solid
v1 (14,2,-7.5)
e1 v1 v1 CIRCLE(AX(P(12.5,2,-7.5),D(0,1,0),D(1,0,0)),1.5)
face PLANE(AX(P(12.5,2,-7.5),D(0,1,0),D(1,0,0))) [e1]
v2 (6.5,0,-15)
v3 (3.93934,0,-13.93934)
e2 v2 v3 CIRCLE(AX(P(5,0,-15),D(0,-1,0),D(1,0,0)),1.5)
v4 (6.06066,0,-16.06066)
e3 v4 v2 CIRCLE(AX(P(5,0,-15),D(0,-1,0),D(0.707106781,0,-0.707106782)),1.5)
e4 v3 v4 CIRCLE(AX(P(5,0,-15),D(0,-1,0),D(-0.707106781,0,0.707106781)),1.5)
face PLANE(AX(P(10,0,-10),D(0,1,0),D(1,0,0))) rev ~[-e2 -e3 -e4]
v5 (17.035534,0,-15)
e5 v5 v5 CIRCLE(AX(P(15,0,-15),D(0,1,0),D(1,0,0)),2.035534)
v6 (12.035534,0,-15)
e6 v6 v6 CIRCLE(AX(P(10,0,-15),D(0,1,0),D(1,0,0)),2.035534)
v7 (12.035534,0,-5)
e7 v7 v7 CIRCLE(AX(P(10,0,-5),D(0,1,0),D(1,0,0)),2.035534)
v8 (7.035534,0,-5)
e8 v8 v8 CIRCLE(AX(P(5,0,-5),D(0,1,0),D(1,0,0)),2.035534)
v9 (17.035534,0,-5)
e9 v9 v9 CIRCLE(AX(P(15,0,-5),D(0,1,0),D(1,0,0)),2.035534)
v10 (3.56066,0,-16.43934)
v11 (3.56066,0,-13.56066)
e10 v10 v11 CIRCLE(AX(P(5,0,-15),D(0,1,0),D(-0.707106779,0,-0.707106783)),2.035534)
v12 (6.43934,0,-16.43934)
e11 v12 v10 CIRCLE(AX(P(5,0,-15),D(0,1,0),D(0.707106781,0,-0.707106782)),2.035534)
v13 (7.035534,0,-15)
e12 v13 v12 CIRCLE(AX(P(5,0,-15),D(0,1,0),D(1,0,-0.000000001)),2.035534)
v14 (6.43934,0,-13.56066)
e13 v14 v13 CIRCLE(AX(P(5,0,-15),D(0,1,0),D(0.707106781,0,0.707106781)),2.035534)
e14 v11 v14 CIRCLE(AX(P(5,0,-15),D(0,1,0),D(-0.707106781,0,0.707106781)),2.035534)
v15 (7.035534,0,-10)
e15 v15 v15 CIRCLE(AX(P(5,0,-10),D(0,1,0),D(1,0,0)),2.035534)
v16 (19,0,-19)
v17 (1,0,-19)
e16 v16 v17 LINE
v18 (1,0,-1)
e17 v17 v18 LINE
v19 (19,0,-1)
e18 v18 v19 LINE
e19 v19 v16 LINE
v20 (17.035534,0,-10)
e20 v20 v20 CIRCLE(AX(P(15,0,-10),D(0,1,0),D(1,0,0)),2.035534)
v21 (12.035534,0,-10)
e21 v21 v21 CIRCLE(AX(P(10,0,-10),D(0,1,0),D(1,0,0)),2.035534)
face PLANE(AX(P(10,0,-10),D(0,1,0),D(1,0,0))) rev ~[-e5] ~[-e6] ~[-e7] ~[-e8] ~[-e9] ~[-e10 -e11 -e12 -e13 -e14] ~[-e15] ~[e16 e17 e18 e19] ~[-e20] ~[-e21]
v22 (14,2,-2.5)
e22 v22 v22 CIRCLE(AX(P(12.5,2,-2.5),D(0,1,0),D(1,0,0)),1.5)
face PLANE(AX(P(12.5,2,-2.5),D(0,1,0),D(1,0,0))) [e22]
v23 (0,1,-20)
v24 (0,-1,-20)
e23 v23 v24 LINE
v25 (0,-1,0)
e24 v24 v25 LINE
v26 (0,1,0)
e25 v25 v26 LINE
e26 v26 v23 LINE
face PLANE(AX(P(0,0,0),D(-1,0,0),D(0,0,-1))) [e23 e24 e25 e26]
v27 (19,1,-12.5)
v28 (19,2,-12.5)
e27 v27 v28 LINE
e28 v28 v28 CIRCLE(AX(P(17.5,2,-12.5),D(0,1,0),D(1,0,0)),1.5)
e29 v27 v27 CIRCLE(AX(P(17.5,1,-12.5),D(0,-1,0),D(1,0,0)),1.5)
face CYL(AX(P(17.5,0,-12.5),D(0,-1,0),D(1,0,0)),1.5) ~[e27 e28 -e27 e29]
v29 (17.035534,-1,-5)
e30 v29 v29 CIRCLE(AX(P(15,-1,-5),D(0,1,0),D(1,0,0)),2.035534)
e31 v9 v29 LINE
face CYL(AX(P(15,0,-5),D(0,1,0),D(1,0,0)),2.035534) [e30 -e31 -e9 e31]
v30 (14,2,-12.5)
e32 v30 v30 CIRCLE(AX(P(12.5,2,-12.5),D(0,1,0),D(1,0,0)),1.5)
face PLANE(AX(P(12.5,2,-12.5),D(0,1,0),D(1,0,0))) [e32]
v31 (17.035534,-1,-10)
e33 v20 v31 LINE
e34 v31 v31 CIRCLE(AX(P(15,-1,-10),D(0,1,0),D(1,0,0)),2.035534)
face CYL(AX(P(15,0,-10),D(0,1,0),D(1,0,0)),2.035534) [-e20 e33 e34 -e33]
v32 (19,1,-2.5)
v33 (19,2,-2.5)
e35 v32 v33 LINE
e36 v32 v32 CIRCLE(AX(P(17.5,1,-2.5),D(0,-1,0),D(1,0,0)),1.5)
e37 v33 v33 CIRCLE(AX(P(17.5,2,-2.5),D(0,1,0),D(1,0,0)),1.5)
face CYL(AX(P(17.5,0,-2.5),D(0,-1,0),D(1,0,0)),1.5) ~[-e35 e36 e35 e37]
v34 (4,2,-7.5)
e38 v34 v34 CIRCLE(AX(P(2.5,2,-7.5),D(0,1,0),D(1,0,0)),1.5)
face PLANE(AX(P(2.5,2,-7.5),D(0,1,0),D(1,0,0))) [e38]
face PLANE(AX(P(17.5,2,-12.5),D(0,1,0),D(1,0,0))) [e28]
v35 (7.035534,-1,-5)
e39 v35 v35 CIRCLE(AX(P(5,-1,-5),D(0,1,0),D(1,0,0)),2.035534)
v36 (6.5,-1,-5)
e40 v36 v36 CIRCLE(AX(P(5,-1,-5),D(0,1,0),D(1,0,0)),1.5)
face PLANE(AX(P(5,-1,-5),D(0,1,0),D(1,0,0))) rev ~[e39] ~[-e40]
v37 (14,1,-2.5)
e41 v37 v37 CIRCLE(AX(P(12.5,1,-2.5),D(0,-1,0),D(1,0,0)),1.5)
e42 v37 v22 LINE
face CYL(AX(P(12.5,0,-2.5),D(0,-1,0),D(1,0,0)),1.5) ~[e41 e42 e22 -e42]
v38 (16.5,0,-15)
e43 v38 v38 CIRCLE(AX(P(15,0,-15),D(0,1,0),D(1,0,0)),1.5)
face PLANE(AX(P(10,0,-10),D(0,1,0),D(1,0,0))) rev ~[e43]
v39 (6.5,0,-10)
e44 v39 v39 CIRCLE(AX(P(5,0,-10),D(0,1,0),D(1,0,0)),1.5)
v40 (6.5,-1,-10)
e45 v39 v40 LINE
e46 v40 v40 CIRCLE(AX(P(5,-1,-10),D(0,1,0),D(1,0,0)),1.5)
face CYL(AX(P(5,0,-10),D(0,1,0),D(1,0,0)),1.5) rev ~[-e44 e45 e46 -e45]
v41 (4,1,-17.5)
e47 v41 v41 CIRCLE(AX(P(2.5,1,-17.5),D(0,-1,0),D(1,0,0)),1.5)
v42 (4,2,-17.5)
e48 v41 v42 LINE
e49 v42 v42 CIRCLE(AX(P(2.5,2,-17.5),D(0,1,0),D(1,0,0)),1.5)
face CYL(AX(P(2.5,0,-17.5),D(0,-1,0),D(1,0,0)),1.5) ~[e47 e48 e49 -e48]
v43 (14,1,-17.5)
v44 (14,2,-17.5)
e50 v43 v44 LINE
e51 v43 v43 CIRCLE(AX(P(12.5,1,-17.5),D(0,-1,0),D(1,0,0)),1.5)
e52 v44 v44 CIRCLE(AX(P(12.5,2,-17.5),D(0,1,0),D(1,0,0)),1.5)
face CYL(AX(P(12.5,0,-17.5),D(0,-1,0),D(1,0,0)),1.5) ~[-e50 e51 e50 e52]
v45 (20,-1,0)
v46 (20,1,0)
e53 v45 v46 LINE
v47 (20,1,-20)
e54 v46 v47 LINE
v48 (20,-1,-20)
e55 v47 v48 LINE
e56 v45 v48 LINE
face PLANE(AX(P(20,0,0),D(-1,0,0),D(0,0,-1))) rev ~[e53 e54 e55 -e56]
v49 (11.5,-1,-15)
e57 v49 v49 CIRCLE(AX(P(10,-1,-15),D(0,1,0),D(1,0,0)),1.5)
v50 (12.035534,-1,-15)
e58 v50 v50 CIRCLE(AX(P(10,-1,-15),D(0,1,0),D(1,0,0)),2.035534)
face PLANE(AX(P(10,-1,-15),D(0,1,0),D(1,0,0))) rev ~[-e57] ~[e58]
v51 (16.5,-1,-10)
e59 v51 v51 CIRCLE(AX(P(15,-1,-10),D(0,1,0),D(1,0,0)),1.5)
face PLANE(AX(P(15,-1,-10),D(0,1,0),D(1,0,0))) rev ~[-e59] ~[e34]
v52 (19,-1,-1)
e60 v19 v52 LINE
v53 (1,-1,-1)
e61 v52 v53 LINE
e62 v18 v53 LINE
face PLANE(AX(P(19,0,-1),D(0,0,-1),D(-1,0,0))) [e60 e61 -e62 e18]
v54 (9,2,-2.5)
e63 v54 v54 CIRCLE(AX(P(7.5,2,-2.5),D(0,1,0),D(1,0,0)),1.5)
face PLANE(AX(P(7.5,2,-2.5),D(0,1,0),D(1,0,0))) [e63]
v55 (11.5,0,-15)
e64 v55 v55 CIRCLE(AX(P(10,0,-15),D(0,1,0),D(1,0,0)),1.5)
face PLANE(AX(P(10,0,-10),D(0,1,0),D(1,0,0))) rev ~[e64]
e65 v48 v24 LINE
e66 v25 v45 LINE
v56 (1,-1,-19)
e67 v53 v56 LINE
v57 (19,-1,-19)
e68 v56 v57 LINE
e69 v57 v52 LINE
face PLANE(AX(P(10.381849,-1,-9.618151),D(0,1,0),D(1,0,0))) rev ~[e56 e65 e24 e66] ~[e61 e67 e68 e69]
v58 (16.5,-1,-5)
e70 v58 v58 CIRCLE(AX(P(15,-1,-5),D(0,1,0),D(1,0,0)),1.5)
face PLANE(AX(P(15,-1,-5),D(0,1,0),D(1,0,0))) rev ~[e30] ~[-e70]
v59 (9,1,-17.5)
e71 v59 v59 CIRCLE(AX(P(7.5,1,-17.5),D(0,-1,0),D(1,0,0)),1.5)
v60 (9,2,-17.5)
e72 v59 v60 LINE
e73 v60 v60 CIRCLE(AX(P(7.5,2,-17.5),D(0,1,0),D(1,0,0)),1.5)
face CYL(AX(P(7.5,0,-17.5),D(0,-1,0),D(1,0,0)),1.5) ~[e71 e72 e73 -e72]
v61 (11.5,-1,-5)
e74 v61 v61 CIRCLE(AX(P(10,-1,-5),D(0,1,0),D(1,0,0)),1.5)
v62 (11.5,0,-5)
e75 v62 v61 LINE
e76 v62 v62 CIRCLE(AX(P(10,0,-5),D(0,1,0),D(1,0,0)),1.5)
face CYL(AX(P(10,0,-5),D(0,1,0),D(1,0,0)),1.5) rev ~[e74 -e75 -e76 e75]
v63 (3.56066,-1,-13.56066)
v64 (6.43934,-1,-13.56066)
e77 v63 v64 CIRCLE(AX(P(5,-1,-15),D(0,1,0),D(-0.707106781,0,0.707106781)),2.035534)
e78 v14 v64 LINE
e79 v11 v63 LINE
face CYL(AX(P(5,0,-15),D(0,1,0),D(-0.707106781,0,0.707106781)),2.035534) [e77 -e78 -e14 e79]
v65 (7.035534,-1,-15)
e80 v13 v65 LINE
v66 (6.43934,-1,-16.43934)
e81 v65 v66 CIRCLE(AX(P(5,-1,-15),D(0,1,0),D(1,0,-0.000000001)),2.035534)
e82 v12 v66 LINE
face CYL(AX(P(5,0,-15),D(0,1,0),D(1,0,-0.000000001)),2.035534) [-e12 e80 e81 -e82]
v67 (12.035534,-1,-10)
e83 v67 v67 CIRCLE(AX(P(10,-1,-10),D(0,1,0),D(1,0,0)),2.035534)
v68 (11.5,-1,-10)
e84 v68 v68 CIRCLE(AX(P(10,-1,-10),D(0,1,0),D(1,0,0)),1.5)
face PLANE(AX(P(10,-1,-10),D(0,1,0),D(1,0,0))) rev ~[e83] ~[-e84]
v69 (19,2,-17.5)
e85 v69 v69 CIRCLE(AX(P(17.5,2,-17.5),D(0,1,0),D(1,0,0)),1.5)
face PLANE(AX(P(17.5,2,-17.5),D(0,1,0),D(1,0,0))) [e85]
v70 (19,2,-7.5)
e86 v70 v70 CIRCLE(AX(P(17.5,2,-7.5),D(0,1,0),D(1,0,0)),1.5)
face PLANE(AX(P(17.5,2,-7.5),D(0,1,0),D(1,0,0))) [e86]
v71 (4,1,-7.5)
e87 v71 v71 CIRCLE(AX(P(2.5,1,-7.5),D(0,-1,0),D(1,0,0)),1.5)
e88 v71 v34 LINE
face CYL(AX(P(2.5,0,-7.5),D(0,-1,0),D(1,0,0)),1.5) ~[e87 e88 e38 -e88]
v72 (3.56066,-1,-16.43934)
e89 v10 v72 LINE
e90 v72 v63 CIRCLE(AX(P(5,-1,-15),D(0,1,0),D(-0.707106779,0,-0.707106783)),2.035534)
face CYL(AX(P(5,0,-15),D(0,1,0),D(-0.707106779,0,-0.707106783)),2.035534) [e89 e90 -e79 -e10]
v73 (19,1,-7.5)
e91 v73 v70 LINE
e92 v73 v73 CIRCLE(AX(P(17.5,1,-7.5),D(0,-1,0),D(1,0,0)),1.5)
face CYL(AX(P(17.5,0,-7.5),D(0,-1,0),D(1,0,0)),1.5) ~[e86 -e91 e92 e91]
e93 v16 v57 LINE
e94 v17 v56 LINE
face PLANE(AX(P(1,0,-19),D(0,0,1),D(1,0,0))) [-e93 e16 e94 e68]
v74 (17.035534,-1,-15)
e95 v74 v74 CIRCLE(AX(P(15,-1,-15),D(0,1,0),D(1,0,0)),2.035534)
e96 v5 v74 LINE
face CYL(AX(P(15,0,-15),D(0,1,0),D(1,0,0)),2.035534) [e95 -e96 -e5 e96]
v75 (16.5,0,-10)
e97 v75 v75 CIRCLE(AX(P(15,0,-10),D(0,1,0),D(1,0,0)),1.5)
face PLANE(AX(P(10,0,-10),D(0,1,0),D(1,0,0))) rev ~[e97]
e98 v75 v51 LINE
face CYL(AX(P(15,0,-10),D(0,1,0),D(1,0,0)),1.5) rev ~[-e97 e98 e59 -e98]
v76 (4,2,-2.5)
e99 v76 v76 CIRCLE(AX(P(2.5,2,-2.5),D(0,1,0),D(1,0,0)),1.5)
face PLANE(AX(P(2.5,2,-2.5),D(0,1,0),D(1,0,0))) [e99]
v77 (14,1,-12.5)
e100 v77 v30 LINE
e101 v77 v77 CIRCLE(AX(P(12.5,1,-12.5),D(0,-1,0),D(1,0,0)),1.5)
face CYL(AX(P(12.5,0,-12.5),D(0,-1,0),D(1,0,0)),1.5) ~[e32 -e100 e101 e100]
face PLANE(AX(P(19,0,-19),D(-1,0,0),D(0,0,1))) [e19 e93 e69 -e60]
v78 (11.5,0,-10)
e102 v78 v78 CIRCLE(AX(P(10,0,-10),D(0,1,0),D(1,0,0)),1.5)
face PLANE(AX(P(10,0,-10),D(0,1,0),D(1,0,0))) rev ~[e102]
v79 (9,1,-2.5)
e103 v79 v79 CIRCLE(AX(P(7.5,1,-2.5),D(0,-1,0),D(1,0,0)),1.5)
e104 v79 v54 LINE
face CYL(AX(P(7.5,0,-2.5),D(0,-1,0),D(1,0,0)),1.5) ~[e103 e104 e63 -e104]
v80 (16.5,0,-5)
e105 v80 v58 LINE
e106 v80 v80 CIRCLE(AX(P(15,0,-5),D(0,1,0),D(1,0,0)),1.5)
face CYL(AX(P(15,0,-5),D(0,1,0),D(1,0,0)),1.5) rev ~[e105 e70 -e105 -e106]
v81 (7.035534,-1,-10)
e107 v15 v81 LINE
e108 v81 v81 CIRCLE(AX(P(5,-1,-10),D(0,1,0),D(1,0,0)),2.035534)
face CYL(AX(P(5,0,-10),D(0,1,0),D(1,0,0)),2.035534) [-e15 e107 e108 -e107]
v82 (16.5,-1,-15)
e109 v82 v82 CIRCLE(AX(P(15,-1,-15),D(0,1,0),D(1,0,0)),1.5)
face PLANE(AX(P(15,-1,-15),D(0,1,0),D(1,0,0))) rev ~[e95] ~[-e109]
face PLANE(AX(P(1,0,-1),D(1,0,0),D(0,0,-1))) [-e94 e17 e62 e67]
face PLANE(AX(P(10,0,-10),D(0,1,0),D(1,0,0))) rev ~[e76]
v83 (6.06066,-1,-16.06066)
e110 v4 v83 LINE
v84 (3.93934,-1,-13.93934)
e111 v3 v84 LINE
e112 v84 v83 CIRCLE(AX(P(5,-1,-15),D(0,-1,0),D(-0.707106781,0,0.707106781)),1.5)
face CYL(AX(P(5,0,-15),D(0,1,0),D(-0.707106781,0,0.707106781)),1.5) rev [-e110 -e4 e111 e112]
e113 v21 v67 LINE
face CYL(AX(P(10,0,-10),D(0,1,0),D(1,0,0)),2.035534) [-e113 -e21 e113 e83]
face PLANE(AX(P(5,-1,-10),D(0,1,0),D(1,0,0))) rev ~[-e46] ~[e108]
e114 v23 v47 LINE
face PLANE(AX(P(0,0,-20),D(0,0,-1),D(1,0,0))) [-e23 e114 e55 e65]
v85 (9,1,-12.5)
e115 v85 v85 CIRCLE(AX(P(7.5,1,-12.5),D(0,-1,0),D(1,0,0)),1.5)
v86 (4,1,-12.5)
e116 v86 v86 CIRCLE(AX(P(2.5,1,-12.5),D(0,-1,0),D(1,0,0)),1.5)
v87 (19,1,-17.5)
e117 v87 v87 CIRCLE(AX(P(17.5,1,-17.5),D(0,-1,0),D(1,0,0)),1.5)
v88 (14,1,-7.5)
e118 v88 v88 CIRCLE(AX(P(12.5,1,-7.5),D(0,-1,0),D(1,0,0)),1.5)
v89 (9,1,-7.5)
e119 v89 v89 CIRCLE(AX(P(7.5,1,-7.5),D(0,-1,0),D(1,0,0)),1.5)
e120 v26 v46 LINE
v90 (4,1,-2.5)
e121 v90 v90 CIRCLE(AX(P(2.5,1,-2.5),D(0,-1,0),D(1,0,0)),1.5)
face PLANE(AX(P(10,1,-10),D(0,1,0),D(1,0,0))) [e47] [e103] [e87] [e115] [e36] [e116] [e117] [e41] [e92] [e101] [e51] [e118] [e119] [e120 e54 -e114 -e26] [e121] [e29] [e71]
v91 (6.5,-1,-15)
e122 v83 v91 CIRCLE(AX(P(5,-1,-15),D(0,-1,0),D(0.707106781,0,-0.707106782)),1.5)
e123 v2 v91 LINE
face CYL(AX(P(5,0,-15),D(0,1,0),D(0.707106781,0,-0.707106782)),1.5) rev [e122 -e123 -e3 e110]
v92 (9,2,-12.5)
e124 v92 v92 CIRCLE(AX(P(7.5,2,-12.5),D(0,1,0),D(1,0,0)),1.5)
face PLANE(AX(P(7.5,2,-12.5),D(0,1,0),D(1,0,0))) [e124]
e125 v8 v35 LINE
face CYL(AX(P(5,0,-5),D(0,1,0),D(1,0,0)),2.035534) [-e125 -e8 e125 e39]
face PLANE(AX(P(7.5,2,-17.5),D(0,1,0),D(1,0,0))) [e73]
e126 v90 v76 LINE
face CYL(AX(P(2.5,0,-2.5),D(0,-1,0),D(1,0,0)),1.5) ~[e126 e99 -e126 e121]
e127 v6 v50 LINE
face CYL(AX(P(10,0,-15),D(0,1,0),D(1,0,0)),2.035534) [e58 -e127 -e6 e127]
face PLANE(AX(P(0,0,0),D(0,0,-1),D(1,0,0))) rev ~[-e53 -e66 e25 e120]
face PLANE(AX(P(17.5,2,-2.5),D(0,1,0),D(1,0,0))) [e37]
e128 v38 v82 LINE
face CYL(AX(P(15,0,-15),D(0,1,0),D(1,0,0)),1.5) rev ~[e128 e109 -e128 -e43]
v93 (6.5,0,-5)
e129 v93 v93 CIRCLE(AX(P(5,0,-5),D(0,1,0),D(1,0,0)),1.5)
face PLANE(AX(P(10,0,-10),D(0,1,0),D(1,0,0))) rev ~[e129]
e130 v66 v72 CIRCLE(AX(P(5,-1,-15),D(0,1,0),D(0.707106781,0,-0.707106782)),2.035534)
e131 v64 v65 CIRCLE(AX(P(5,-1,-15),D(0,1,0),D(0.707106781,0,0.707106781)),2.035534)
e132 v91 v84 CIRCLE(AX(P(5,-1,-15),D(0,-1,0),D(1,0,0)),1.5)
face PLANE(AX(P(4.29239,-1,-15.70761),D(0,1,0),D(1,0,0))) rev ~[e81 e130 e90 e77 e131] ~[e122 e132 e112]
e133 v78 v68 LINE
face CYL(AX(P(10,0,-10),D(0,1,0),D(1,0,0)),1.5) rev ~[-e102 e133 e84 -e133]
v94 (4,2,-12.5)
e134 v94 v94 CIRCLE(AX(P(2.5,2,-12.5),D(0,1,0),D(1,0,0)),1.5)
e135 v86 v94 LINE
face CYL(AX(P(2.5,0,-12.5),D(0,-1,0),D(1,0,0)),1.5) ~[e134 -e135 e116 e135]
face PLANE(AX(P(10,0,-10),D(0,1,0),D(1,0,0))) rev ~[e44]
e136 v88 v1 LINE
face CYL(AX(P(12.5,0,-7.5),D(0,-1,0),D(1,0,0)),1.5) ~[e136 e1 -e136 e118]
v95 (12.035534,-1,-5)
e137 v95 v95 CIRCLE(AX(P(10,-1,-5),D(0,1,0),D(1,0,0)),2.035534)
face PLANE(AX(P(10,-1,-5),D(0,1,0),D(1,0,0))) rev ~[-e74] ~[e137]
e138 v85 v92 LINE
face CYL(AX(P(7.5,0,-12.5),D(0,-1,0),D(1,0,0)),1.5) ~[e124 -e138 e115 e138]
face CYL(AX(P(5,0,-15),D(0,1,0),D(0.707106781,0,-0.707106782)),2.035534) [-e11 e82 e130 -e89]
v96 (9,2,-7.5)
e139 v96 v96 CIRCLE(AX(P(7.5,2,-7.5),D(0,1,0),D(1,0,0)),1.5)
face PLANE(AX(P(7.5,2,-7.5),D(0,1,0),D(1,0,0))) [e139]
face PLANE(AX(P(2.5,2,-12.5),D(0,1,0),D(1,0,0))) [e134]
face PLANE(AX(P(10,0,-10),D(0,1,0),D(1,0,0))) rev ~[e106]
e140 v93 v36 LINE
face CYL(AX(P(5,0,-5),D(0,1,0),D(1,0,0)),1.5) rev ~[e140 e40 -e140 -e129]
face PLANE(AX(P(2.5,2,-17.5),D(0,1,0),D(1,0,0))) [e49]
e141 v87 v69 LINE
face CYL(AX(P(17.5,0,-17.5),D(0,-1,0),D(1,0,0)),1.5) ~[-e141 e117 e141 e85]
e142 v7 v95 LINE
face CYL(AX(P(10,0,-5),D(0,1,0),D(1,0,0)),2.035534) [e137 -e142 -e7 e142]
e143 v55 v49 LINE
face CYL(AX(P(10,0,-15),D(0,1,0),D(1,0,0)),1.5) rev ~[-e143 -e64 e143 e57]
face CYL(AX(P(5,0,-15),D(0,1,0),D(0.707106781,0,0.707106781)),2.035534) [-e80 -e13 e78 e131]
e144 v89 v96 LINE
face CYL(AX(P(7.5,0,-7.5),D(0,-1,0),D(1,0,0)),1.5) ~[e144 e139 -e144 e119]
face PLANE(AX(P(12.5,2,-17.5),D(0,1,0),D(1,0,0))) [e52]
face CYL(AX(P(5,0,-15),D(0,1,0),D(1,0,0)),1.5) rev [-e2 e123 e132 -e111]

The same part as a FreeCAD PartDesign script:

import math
import FreeCAD as App
import Part
import Sketcher

V = App.Vector


def add_polygon(sketch, points):
    """Adds a closed chain of lines whose ends are joined by coincident constraints."""
    first, n = sketch.GeometryCount, len(points)
    for a, b in zip(points, points[1:] + points[:1]):
        sketch.addGeometry(Part.LineSegment(App.Vector(*a, 0), App.Vector(*b, 0)), False)
    for i in range(n):
        sketch.addConstraint(Sketcher.Constraint("Coincident", first + i, 2, first + (i + 1) % n, 1))

doc = App.newDocument("Part")
params = doc.addObject("Spreadsheet::Sheet", "Params")
for row, (alias, value) in enumerate([
    ("sketch1_diameter", "3 mm"),
    ("sketch1_width", "20 mm"),
    ("sketch1_width2", "18 mm"),
    ("pad1_length", "1 mm"),
    ("sketch2_diameter", "3 mm"),
    ("pad2_length", "2 mm"),
    ("sketch3_diameter", "3 mm"),
    ("pad3_length", "2 mm"),
    ("sketch4_diameter", "3 mm"),
    ("pad4_length", "2 mm"),
    ("sketch5_diameter", "3 mm"),
    ("pad5_length", "2 mm"),
    ("sketch6_diameter", "3 mm"),
    ("pad6_length", "2 mm"),
    ("sketch7_diameter", "3 mm"),
    ("pad7_length", "2 mm"),
    ("sketch8_diameter", "3 mm"),
    ("pad8_length", "2 mm"),
    ("sketch9_diameter", "3 mm"),
    ("pad9_length", "2 mm"),
    ("sketch10_diameter", "3 mm"),
    ("pad10_length", "2 mm"),
    ("sketch11_diameter", "3 mm"),
    ("pad11_length", "2 mm"),
    ("sketch12_diameter", "3 mm"),
    ("pad12_length", "2 mm"),
    ("sketch13_diameter", "3 mm"),
    ("pad13_length", "2 mm"),
    ("sketch14_diameter", "3 mm"),
    ("pad14_length", "2 mm"),
    ("sketch15_diameter", "3 mm"),
    ("pad15_length", "2 mm"),
    ("sketch16_diameter", "3 mm"),
    ("pad16_length", "2 mm"),
    ("sketch17_diameter", "3 mm"),
    ("pad17_length", "2 mm"),
    ("sketch18_width", "20 mm"),
    ("pad18_length", "1 mm"),
], start=1):
    params.set(f"A{row}", alias)
    params.set(f"B{row}", "=" + value)
    params.setAlias(f"B{row}", alias)

body = doc.addObject("PartDesign::Body", "Body")
body.AllowCompound = True

sketch1 = body.newObject("Sketcher::SketchObject", "Sketch")
sketch1.AttachmentSupport = (doc.getObject("XZ_Plane"), [""])
sketch1.MapMode = "FlatFace"
add_polygon(sketch1, [(0, 0), (20, 0), (20, -20), (0, -20)])
add_polygon(sketch1, [(19, -19), (19, -1), (1, -1), (1, -19)])
sketch1.addGeometry(Part.Circle(V(5, -5, 0), V(0, 0, 1), 2.035534), False)
sketch1.addGeometry(Part.Circle(V(5, -5, 0), V(0, 0, 1), 1.5), False)
sketch1.addGeometry(Part.Circle(V(5, -10, 0), V(0, 0, 1), 2.035534), False)
sketch1.addGeometry(Part.Circle(V(5, -10, 0), V(0, 0, 1), 1.5), False)
sketch1.addGeometry(Part.ArcOfCircle(Part.Circle(V(5, -15, 0), V(0, 0, 1), 2.035534), math.radians(135), math.radians(225)), False)
sketch1.addGeometry(Part.ArcOfCircle(Part.Circle(V(5, -15, 0), V(0, 0, 1), 2.035534), math.radians(45), math.radians(135)), False)
sketch1.addGeometry(Part.ArcOfCircle(Part.Circle(V(5, -15, 0), V(0, 0, 1), 2.035534), math.radians(0), math.radians(45)), False)
sketch1.addGeometry(Part.ArcOfCircle(Part.Circle(V(5, -15, 0), V(0, 0, 1), 2.035534), math.radians(-45), math.radians(0)), False)
sketch1.addGeometry(Part.ArcOfCircle(Part.Circle(V(5, -15, 0), V(0, 0, 1), 2.035534), math.radians(-135), math.radians(-45)), False)
sketch1.addGeometry(Part.ArcOfCircle(Part.Circle(V(5, -15, 0), V(0, 0, 1), 1.5), math.radians(135), math.radians(315)), False)
sketch1.addGeometry(Part.ArcOfCircle(Part.Circle(V(5, -15, 0), V(0, 0, 1), 1.5), math.radians(-45), math.radians(0)), False)
sketch1.addGeometry(Part.ArcOfCircle(Part.Circle(V(5, -15, 0), V(0, 0, 1), 1.5), math.radians(0), math.radians(135)), False)
sketch1.addGeometry(Part.Circle(V(10, -5, 0), V(0, 0, 1), 2.035534), False)
sketch1.addGeometry(Part.Circle(V(10, -5, 0), V(0, 0, 1), 1.5), False)
sketch1.addGeometry(Part.Circle(V(15, -5, 0), V(0, 0, 1), 2.035534), False)
sketch1.addGeometry(Part.Circle(V(15, -5, 0), V(0, 0, 1), 1.5), False)
sketch1.addGeometry(Part.Circle(V(15, -15, 0), V(0, 0, 1), 2.035534), False)
sketch1.addGeometry(Part.Circle(V(15, -15, 0), V(0, 0, 1), 1.5), False)
sketch1.addGeometry(Part.Circle(V(15, -10, 0), V(0, 0, 1), 2.035534), False)
sketch1.addGeometry(Part.Circle(V(15, -10, 0), V(0, 0, 1), 1.5), False)
sketch1.addGeometry(Part.Circle(V(10, -10, 0), V(0, 0, 1), 2.035534), False)
sketch1.addGeometry(Part.Circle(V(10, -10, 0), V(0, 0, 1), 1.5), False)
sketch1.addGeometry(Part.Circle(V(10, -15, 0), V(0, 0, 1), 2.035534), False)
sketch1.addGeometry(Part.Circle(V(10, -15, 0), V(0, 0, 1), 1.5), False)
sketch1.addConstraint(Sketcher.Constraint("Tangent", 12, 1, 13, 2))
sketch1.addConstraint(Sketcher.Constraint("Tangent", 13, 1, 14, 2))
sketch1.addConstraint(Sketcher.Constraint("Tangent", 14, 1, 15, 2))
sketch1.addConstraint(Sketcher.Constraint("Tangent", 15, 1, 16, 2))
sketch1.addConstraint(Sketcher.Constraint("Tangent", 16, 1, 12, 2))
sketch1.addConstraint(Sketcher.Constraint("Tangent", 17, 2, 18, 1))
sketch1.addConstraint(Sketcher.Constraint("Tangent", 18, 2, 19, 1))
sketch1.addConstraint(Sketcher.Constraint("Tangent", 19, 2, 17, 1))
sketch1.addConstraint(Sketcher.Constraint("Horizontal", 0))
sketch1.addConstraint(Sketcher.Constraint("Vertical", 1))
sketch1.addConstraint(Sketcher.Constraint("Horizontal", 2))
sketch1.addConstraint(Sketcher.Constraint("Vertical", 3))
sketch1.addConstraint(Sketcher.Constraint("Vertical", 4))
sketch1.addConstraint(Sketcher.Constraint("Horizontal", 5))
sketch1.addConstraint(Sketcher.Constraint("Vertical", 6))
sketch1.addConstraint(Sketcher.Constraint("Horizontal", 7))
sketch1.addConstraint(Sketcher.Constraint("Coincident", 3, 2, -1, 1))
sketch1.addConstraint(Sketcher.Constraint("Coincident", 9, 3, 8, 3))
sketch1.addConstraint(Sketcher.Constraint("Coincident", 11, 3, 10, 3))
sketch1.addConstraint(Sketcher.Constraint("Coincident", 14, 3, 12, 3))
sketch1.addConstraint(Sketcher.Constraint("Coincident", 17, 3, 12, 3))
sketch1.addConstraint(Sketcher.Constraint("Coincident", 21, 3, 20, 3))
sketch1.addConstraint(Sketcher.Constraint("Coincident", 23, 3, 22, 3))
sketch1.addConstraint(Sketcher.Constraint("Coincident", 25, 3, 24, 3))
sketch1.addConstraint(Sketcher.Constraint("Coincident", 27, 3, 26, 3))
sketch1.addConstraint(Sketcher.Constraint("Coincident", 29, 3, 28, 3))
sketch1.addConstraint(Sketcher.Constraint("Coincident", 31, 3, 30, 3))
sketch1.addConstraint(Sketcher.Constraint("Equal", 8, 10))
sketch1.addConstraint(Sketcher.Constraint("Equal", 9, 11))
sketch1.addConstraint(Sketcher.Constraint("Equal", 10, 12))
sketch1.addConstraint(Sketcher.Constraint("Equal", 11, 17))
sketch1.addConstraint(Sketcher.Constraint("Equal", 16, 20))
sketch1.addConstraint(Sketcher.Constraint("Equal", 19, 21))
sketch1.addConstraint(Sketcher.Constraint("Equal", 20, 22))
sketch1.addConstraint(Sketcher.Constraint("Equal", 21, 23))
sketch1.addConstraint(Sketcher.Constraint("Equal", 22, 24))
sketch1.addConstraint(Sketcher.Constraint("Equal", 23, 25))
sketch1.addConstraint(Sketcher.Constraint("Equal", 24, 26))
sketch1.addConstraint(Sketcher.Constraint("Equal", 25, 27))
sketch1.addConstraint(Sketcher.Constraint("Equal", 26, 28))
sketch1.addConstraint(Sketcher.Constraint("Equal", 27, 29))
sketch1.addConstraint(Sketcher.Constraint("Equal", 28, 30))
sketch1.addConstraint(Sketcher.Constraint("Equal", 29, 31))
sketch1.addConstraint(Sketcher.Constraint("Horizontal", 9, 3, 20, 3))
sketch1.addConstraint(Sketcher.Constraint("Horizontal", 21, 3, 22, 3))
sketch1.addConstraint(Sketcher.Constraint("Horizontal", 19, 3, 24, 3))
sketch1.addConstraint(Sketcher.Constraint("Horizontal", 11, 3, 26, 3))
sketch1.addConstraint(Sketcher.Constraint("Horizontal", 27, 3, 28, 3))
sketch1.addConstraint(Sketcher.Constraint("Horizontal", 25, 3, 30, 3))
sketch1.addConstraint(Sketcher.Constraint("Horizontal", 12, 1, 13, 1))
sketch1.addConstraint(Sketcher.Constraint("Horizontal", 31, 3, 14, 1))
sketch1.addConstraint(Sketcher.Constraint("Horizontal", 15, 1, 16, 1))
sketch1.addConstraint(Sketcher.Constraint("Horizontal", 14, 1, 18, 2))
sketch1.addConstraint(Sketcher.Constraint("Vertical", 9, 3, 10, 3))
sketch1.addConstraint(Sketcher.Constraint("Vertical", 11, 3, 12, 3))
sketch1.addConstraint(Sketcher.Constraint("Vertical", 23, 3, 24, 3))
sketch1.addConstraint(Sketcher.Constraint("Vertical", 25, 3, 26, 3))
sketch1.addConstraint(Sketcher.Constraint("Vertical", 21, 3, 28, 3))
sketch1.addConstraint(Sketcher.Constraint("Vertical", 29, 3, 30, 3))
sketch1.addConstraint(Sketcher.Constraint("Vertical", 13, 1, 15, 1))
sketch1.addConstraint(Sketcher.Constraint("Equal", 2, 1))
sketch1.addConstraint(Sketcher.Constraint("Equal", 7, 4))
sketch1.addConstraint(Sketcher.Constraint("Diameter", 9, 3.0))
sketch1.addConstraint(Sketcher.Constraint("DistanceX", 0, 1, 0, 2, 20.0))
sketch1.addConstraint(Sketcher.Constraint("DistanceX", 5, 2, 5, 1, 18.0))
sketch1.addConstraint(Sketcher.Constraint("DistanceX", -1, 1, 8, 3, 5.0))
sketch1.addConstraint(Sketcher.Constraint("DistanceY", 8, 3, -1, 1, 5.0))
sketch1.addConstraint(Sketcher.Constraint("DistanceY", 10, 3, -1, 1, 10.0))
sketch1.addConstraint(Sketcher.Constraint("DistanceY", 12, 3, -1, 1, 15.0))
sketch1.addConstraint(Sketcher.Constraint("DistanceX", -1, 1, 20, 3, 10.0))
sketch1.addConstraint(Sketcher.Constraint("DistanceX", -1, 1, 22, 3, 15.0))
sketch1.addConstraint(Sketcher.Constraint("DistanceX", -1, 1, 4, 2, 19.0))
sketch1.addConstraint(Sketcher.Constraint("DistanceY", 4, 2, -1, 1, 1.0))
sketch1.addConstraint(Sketcher.Constraint("Diameter", 8, 4.071068))
sketch1.addConstraint(Sketcher.Constraint("DistanceX", -1, 1, 12, 1, 3.56066))
sketch1.addConstraint(Sketcher.Constraint("DistanceX", -1, 1, 17, 2, 6.06066))
sketch1.addConstraint(Sketcher.Constraint("DistanceX", -1, 1, 19, 2, 3.93934))
sketch1.setExpression("Constraints[70]", "Params.sketch1_diameter")
sketch1.setExpression("Constraints[71]", "Params.sketch1_width")
sketch1.setExpression("Constraints[72]", "Params.sketch1_width2")
pad1 = body.newObject("PartDesign::Pad", "Pad")
pad1.Profile = sketch1
pad1.setExpression("Length", "Params.pad1_length")
body2 = doc.addObject("PartDesign::Body", "Body001")

sketch2 = body2.newObject("Sketcher::SketchObject", "Sketch001")
sketch2.AttachmentSupport = (doc.getObject("XZ_Plane001"), [""])
sketch2.MapMode = "FlatFace"
sketch2.addGeometry(Part.Circle(V(2.5, -12.5, 0), V(0, 0, 1), 1.5), False)
sketch2.addConstraint(Sketcher.Constraint("Diameter", 0, 3.0))
sketch2.addConstraint(Sketcher.Constraint("DistanceX", -1, 1, 0, 3, 2.5))
sketch2.addConstraint(Sketcher.Constraint("DistanceY", 0, 3, -1, 1, 12.5))
sketch2.setExpression("Constraints[0]", "Params.sketch2_diameter")
pad2 = body2.newObject("PartDesign::Pad", "Pad001")
pad2.Profile = sketch2
pad2.setExpression("Length", "Params.pad2_length")
pad2.Reversed = True
body3 = doc.addObject("PartDesign::Body", "Body002")

sketch3 = body3.newObject("Sketcher::SketchObject", "Sketch002")
sketch3.AttachmentSupport = (doc.getObject("XZ_Plane002"), [""])
sketch3.MapMode = "FlatFace"
sketch3.addGeometry(Part.Circle(V(2.5, -17.5, 0), V(0, 0, 1), 1.5), False)
sketch3.addConstraint(Sketcher.Constraint("Diameter", 0, 3.0))
sketch3.addConstraint(Sketcher.Constraint("DistanceX", -1, 1, 0, 3, 2.5))
sketch3.addConstraint(Sketcher.Constraint("DistanceY", 0, 3, -1, 1, 17.5))
sketch3.setExpression("Constraints[0]", "Params.sketch3_diameter")
pad3 = body3.newObject("PartDesign::Pad", "Pad002")
pad3.Profile = sketch3
pad3.setExpression("Length", "Params.pad3_length")
pad3.Reversed = True
body4 = doc.addObject("PartDesign::Body", "Body003")

sketch4 = body4.newObject("Sketcher::SketchObject", "Sketch003")
sketch4.AttachmentSupport = (doc.getObject("XZ_Plane003"), [""])
sketch4.MapMode = "FlatFace"
sketch4.addGeometry(Part.Circle(V(7.5, -12.5, 0), V(0, 0, 1), 1.5), False)
sketch4.addConstraint(Sketcher.Constraint("Diameter", 0, 3.0))
sketch4.addConstraint(Sketcher.Constraint("DistanceX", -1, 1, 0, 3, 7.5))
sketch4.addConstraint(Sketcher.Constraint("DistanceY", 0, 3, -1, 1, 12.5))
sketch4.setExpression("Constraints[0]", "Params.sketch4_diameter")
pad4 = body4.newObject("PartDesign::Pad", "Pad003")
pad4.Profile = sketch4
pad4.setExpression("Length", "Params.pad4_length")
pad4.Reversed = True
body5 = doc.addObject("PartDesign::Body", "Body004")

sketch5 = body5.newObject("Sketcher::SketchObject", "Sketch004")
sketch5.AttachmentSupport = (doc.getObject("XZ_Plane004"), [""])
sketch5.MapMode = "FlatFace"
sketch5.addGeometry(Part.Circle(V(2.5, -7.5, 0), V(0, 0, 1), 1.5), False)
sketch5.addConstraint(Sketcher.Constraint("Diameter", 0, 3.0))
sketch5.addConstraint(Sketcher.Constraint("DistanceX", -1, 1, 0, 3, 2.5))
sketch5.addConstraint(Sketcher.Constraint("DistanceY", 0, 3, -1, 1, 7.5))
sketch5.setExpression("Constraints[0]", "Params.sketch5_diameter")
pad5 = body5.newObject("PartDesign::Pad", "Pad004")
pad5.Profile = sketch5
pad5.setExpression("Length", "Params.pad5_length")
pad5.Reversed = True
body6 = doc.addObject("PartDesign::Body", "Body005")

sketch6 = body6.newObject("Sketcher::SketchObject", "Sketch005")
sketch6.AttachmentSupport = (doc.getObject("XZ_Plane005"), [""])
sketch6.MapMode = "FlatFace"
sketch6.addGeometry(Part.Circle(V(7.5, -17.5, 0), V(0, 0, 1), 1.5), False)
sketch6.addConstraint(Sketcher.Constraint("Diameter", 0, 3.0))
sketch6.addConstraint(Sketcher.Constraint("DistanceX", -1, 1, 0, 3, 7.5))
sketch6.addConstraint(Sketcher.Constraint("DistanceY", 0, 3, -1, 1, 17.5))
sketch6.setExpression("Constraints[0]", "Params.sketch6_diameter")
pad6 = body6.newObject("PartDesign::Pad", "Pad005")
pad6.Profile = sketch6
pad6.setExpression("Length", "Params.pad6_length")
pad6.Reversed = True
body7 = doc.addObject("PartDesign::Body", "Body006")

sketch7 = body7.newObject("Sketcher::SketchObject", "Sketch006")
sketch7.AttachmentSupport = (doc.getObject("XZ_Plane006"), [""])
sketch7.MapMode = "FlatFace"
sketch7.addGeometry(Part.Circle(V(2.5, -2.5, 0), V(0, 0, 1), 1.5), False)
sketch7.addConstraint(Sketcher.Constraint("Diameter", 0, 3.0))
sketch7.addConstraint(Sketcher.Constraint("DistanceX", -1, 1, 0, 3, 2.5))
sketch7.addConstraint(Sketcher.Constraint("DistanceY", 0, 3, -1, 1, 2.5))
sketch7.setExpression("Constraints[0]", "Params.sketch7_diameter")
pad7 = body7.newObject("PartDesign::Pad", "Pad006")
pad7.Profile = sketch7
pad7.setExpression("Length", "Params.pad7_length")
pad7.Reversed = True
body8 = doc.addObject("PartDesign::Body", "Body007")

sketch8 = body8.newObject("Sketcher::SketchObject", "Sketch007")
sketch8.AttachmentSupport = (doc.getObject("XZ_Plane007"), [""])
sketch8.MapMode = "FlatFace"
sketch8.addGeometry(Part.Circle(V(12.5, -12.5, 0), V(0, 0, 1), 1.5), False)
sketch8.addConstraint(Sketcher.Constraint("Diameter", 0, 3.0))
sketch8.addConstraint(Sketcher.Constraint("DistanceX", -1, 1, 0, 3, 12.5))
sketch8.addConstraint(Sketcher.Constraint("DistanceY", 0, 3, -1, 1, 12.5))
sketch8.setExpression("Constraints[0]", "Params.sketch8_diameter")
pad8 = body8.newObject("PartDesign::Pad", "Pad007")
pad8.Profile = sketch8
pad8.setExpression("Length", "Params.pad8_length")
pad8.Reversed = True
body9 = doc.addObject("PartDesign::Body", "Body008")

sketch9 = body9.newObject("Sketcher::SketchObject", "Sketch008")
sketch9.AttachmentSupport = (doc.getObject("XZ_Plane008"), [""])
sketch9.MapMode = "FlatFace"
sketch9.addGeometry(Part.Circle(V(7.5, -7.5, 0), V(0, 0, 1), 1.5), False)
sketch9.addConstraint(Sketcher.Constraint("Diameter", 0, 3.0))
sketch9.addConstraint(Sketcher.Constraint("DistanceX", -1, 1, 0, 3, 7.5))
sketch9.addConstraint(Sketcher.Constraint("DistanceY", 0, 3, -1, 1, 7.5))
sketch9.setExpression("Constraints[0]", "Params.sketch9_diameter")
pad9 = body9.newObject("PartDesign::Pad", "Pad008")
pad9.Profile = sketch9
pad9.setExpression("Length", "Params.pad9_length")
pad9.Reversed = True
body10 = doc.addObject("PartDesign::Body", "Body009")

sketch10 = body10.newObject("Sketcher::SketchObject", "Sketch009")
sketch10.AttachmentSupport = (doc.getObject("XZ_Plane009"), [""])
sketch10.MapMode = "FlatFace"
sketch10.addGeometry(Part.Circle(V(12.5, -17.5, 0), V(0, 0, 1), 1.5), False)
sketch10.addConstraint(Sketcher.Constraint("Diameter", 0, 3.0))
sketch10.addConstraint(Sketcher.Constraint("DistanceX", -1, 1, 0, 3, 12.5))
sketch10.addConstraint(Sketcher.Constraint("DistanceY", 0, 3, -1, 1, 17.5))
sketch10.setExpression("Constraints[0]", "Params.sketch10_diameter")
pad10 = body10.newObject("PartDesign::Pad", "Pad009")
pad10.Profile = sketch10
pad10.setExpression("Length", "Params.pad10_length")
pad10.Reversed = True
body11 = doc.addObject("PartDesign::Body", "Body010")

sketch11 = body11.newObject("Sketcher::SketchObject", "Sketch010")
sketch11.AttachmentSupport = (doc.getObject("XZ_Plane010"), [""])
sketch11.MapMode = "FlatFace"
sketch11.addGeometry(Part.Circle(V(7.5, -2.5, 0), V(0, 0, 1), 1.5), False)
sketch11.addConstraint(Sketcher.Constraint("Diameter", 0, 3.0))
sketch11.addConstraint(Sketcher.Constraint("DistanceX", -1, 1, 0, 3, 7.5))
sketch11.addConstraint(Sketcher.Constraint("DistanceY", 0, 3, -1, 1, 2.5))
sketch11.setExpression("Constraints[0]", "Params.sketch11_diameter")
pad11 = body11.newObject("PartDesign::Pad", "Pad010")
pad11.Profile = sketch11
pad11.setExpression("Length", "Params.pad11_length")
pad11.Reversed = True
body12 = doc.addObject("PartDesign::Body", "Body011")

sketch12 = body12.newObject("Sketcher::SketchObject", "Sketch011")
sketch12.AttachmentSupport = (doc.getObject("XZ_Plane011"), [""])
sketch12.MapMode = "FlatFace"
sketch12.addGeometry(Part.Circle(V(17.5, -17.5, 0), V(0, 0, 1), 1.5), False)
sketch12.addConstraint(Sketcher.Constraint("Diameter", 0, 3.0))
sketch12.addConstraint(Sketcher.Constraint("DistanceX", -1, 1, 0, 3, 17.5))
sketch12.addConstraint(Sketcher.Constraint("DistanceY", 0, 3, -1, 1, 17.5))
sketch12.setExpression("Constraints[0]", "Params.sketch12_diameter")
pad12 = body12.newObject("PartDesign::Pad", "Pad011")
pad12.Profile = sketch12
pad12.setExpression("Length", "Params.pad12_length")
pad12.Reversed = True
body13 = doc.addObject("PartDesign::Body", "Body012")

sketch13 = body13.newObject("Sketcher::SketchObject", "Sketch012")
sketch13.AttachmentSupport = (doc.getObject("XZ_Plane012"), [""])
sketch13.MapMode = "FlatFace"
sketch13.addGeometry(Part.Circle(V(17.5, -12.5, 0), V(0, 0, 1), 1.5), False)
sketch13.addConstraint(Sketcher.Constraint("Diameter", 0, 3.0))
sketch13.addConstraint(Sketcher.Constraint("DistanceX", -1, 1, 0, 3, 17.5))
sketch13.addConstraint(Sketcher.Constraint("DistanceY", 0, 3, -1, 1, 12.5))
sketch13.setExpression("Constraints[0]", "Params.sketch13_diameter")
pad13 = body13.newObject("PartDesign::Pad", "Pad012")
pad13.Profile = sketch13
pad13.setExpression("Length", "Params.pad13_length")
pad13.Reversed = True
body14 = doc.addObject("PartDesign::Body", "Body013")

sketch14 = body14.newObject("Sketcher::SketchObject", "Sketch013")
sketch14.AttachmentSupport = (doc.getObject("XZ_Plane013"), [""])
sketch14.MapMode = "FlatFace"
sketch14.addGeometry(Part.Circle(V(12.5, -7.5, 0), V(0, 0, 1), 1.5), False)
sketch14.addConstraint(Sketcher.Constraint("Diameter", 0, 3.0))
sketch14.addConstraint(Sketcher.Constraint("DistanceX", -1, 1, 0, 3, 12.5))
sketch14.addConstraint(Sketcher.Constraint("DistanceY", 0, 3, -1, 1, 7.5))
sketch14.setExpression("Constraints[0]", "Params.sketch14_diameter")
pad14 = body14.newObject("PartDesign::Pad", "Pad013")
pad14.Profile = sketch14
pad14.setExpression("Length", "Params.pad14_length")
pad14.Reversed = True
body15 = doc.addObject("PartDesign::Body", "Body014")

sketch15 = body15.newObject("Sketcher::SketchObject", "Sketch014")
sketch15.AttachmentSupport = (doc.getObject("XZ_Plane014"), [""])
sketch15.MapMode = "FlatFace"
sketch15.addGeometry(Part.Circle(V(12.5, -2.5, 0), V(0, 0, 1), 1.5), False)
sketch15.addConstraint(Sketcher.Constraint("Diameter", 0, 3.0))
sketch15.addConstraint(Sketcher.Constraint("DistanceX", -1, 1, 0, 3, 12.5))
sketch15.addConstraint(Sketcher.Constraint("DistanceY", 0, 3, -1, 1, 2.5))
sketch15.setExpression("Constraints[0]", "Params.sketch15_diameter")
pad15 = body15.newObject("PartDesign::Pad", "Pad014")
pad15.Profile = sketch15
pad15.setExpression("Length", "Params.pad15_length")
pad15.Reversed = True
body16 = doc.addObject("PartDesign::Body", "Body015")

sketch16 = body16.newObject("Sketcher::SketchObject", "Sketch015")
sketch16.AttachmentSupport = (doc.getObject("XZ_Plane015"), [""])
sketch16.MapMode = "FlatFace"
sketch16.addGeometry(Part.Circle(V(17.5, -2.5, 0), V(0, 0, 1), 1.5), False)
sketch16.addConstraint(Sketcher.Constraint("Diameter", 0, 3.0))
sketch16.addConstraint(Sketcher.Constraint("DistanceX", -1, 1, 0, 3, 17.5))
sketch16.addConstraint(Sketcher.Constraint("DistanceY", 0, 3, -1, 1, 2.5))
sketch16.setExpression("Constraints[0]", "Params.sketch16_diameter")
pad16 = body16.newObject("PartDesign::Pad", "Pad015")
pad16.Profile = sketch16
pad16.setExpression("Length", "Params.pad16_length")
pad16.Reversed = True
body17 = doc.addObject("PartDesign::Body", "Body016")

sketch17 = body17.newObject("Sketcher::SketchObject", "Sketch016")
sketch17.AttachmentSupport = (doc.getObject("XZ_Plane016"), [""])
sketch17.MapMode = "FlatFace"
sketch17.addGeometry(Part.Circle(V(17.5, -7.5, 0), V(0, 0, 1), 1.5), False)
sketch17.addConstraint(Sketcher.Constraint("Diameter", 0, 3.0))
sketch17.addConstraint(Sketcher.Constraint("DistanceX", -1, 1, 0, 3, 17.5))
sketch17.addConstraint(Sketcher.Constraint("DistanceY", 0, 3, -1, 1, 7.5))
sketch17.setExpression("Constraints[0]", "Params.sketch17_diameter")
pad17 = body17.newObject("PartDesign::Pad", "Pad016")
pad17.Profile = sketch17
pad17.setExpression("Length", "Params.pad17_length")
pad17.Reversed = True
body.AllowCompound = True
doc.recompute()

boolean = body.newObject("PartDesign::Boolean", "Boolean")
boolean.Type = "Fuse"
boolean.addObjects([body2])
doc.recompute()

boolean2 = body.newObject("PartDesign::Boolean", "Boolean001")
boolean2.Type = "Fuse"
boolean2.addObjects([body3])
doc.recompute()

boolean3 = body.newObject("PartDesign::Boolean", "Boolean002")
boolean3.Type = "Fuse"
boolean3.addObjects([body4])
doc.recompute()

boolean4 = body.newObject("PartDesign::Boolean", "Boolean003")
boolean4.Type = "Fuse"
boolean4.addObjects([body5])
doc.recompute()

boolean5 = body.newObject("PartDesign::Boolean", "Boolean004")
boolean5.Type = "Fuse"
boolean5.addObjects([body6])
doc.recompute()

boolean6 = body.newObject("PartDesign::Boolean", "Boolean005")
boolean6.Type = "Fuse"
boolean6.addObjects([body7])
doc.recompute()

boolean7 = body.newObject("PartDesign::Boolean", "Boolean006")
boolean7.Type = "Fuse"
boolean7.addObjects([body8])
doc.recompute()

boolean8 = body.newObject("PartDesign::Boolean", "Boolean007")
boolean8.Type = "Fuse"
boolean8.addObjects([body9])
doc.recompute()

boolean9 = body.newObject("PartDesign::Boolean", "Boolean008")
boolean9.Type = "Fuse"
boolean9.addObjects([body10])
doc.recompute()

boolean10 = body.newObject("PartDesign::Boolean", "Boolean009")
boolean10.Type = "Fuse"
boolean10.addObjects([body11])
doc.recompute()

boolean11 = body.newObject("PartDesign::Boolean", "Boolean010")
boolean11.Type = "Fuse"
boolean11.addObjects([body12])
doc.recompute()

boolean12 = body.newObject("PartDesign::Boolean", "Boolean011")
boolean12.Type = "Fuse"
boolean12.addObjects([body13])
doc.recompute()

boolean13 = body.newObject("PartDesign::Boolean", "Boolean012")
boolean13.Type = "Fuse"
boolean13.addObjects([body14])
doc.recompute()

boolean14 = body.newObject("PartDesign::Boolean", "Boolean013")
boolean14.Type = "Fuse"
boolean14.addObjects([body15])
doc.recompute()

boolean15 = body.newObject("PartDesign::Boolean", "Boolean014")
boolean15.Type = "Fuse"
boolean15.addObjects([body16])
doc.recompute()

boolean16 = body.newObject("PartDesign::Boolean", "Boolean015")
boolean16.Type = "Fuse"
boolean16.addObjects([body17])

sketch18 = body.newObject("Sketcher::SketchObject", "Sketch017")
sketch18.AttachmentSupport = (doc.getObject("XZ_Plane"), [""])
sketch18.MapMode = "FlatFace"
add_polygon(sketch18, [(0, -20), (0, 0), (20, 0), (20, -20)])
sketch18.addConstraint(Sketcher.Constraint("Vertical", 0))
sketch18.addConstraint(Sketcher.Constraint("Horizontal", 1))
sketch18.addConstraint(Sketcher.Constraint("Vertical", 2))
sketch18.addConstraint(Sketcher.Constraint("Horizontal", 3))
sketch18.addConstraint(Sketcher.Constraint("Coincident", 0, 2, -1, 1))
sketch18.addConstraint(Sketcher.Constraint("Equal", 3, 0))
sketch18.addConstraint(Sketcher.Constraint("DistanceX", 1, 1, 1, 2, 20.0))
sketch18.setExpression("Constraints[10]", "Params.sketch18_width")
pad18 = body.newObject("PartDesign::Pad", "Pad017")
pad18.Profile = sketch18
pad18.setExpression("Length", "Params.pad18_length")
pad18.Reversed = True

doc.recompute()
